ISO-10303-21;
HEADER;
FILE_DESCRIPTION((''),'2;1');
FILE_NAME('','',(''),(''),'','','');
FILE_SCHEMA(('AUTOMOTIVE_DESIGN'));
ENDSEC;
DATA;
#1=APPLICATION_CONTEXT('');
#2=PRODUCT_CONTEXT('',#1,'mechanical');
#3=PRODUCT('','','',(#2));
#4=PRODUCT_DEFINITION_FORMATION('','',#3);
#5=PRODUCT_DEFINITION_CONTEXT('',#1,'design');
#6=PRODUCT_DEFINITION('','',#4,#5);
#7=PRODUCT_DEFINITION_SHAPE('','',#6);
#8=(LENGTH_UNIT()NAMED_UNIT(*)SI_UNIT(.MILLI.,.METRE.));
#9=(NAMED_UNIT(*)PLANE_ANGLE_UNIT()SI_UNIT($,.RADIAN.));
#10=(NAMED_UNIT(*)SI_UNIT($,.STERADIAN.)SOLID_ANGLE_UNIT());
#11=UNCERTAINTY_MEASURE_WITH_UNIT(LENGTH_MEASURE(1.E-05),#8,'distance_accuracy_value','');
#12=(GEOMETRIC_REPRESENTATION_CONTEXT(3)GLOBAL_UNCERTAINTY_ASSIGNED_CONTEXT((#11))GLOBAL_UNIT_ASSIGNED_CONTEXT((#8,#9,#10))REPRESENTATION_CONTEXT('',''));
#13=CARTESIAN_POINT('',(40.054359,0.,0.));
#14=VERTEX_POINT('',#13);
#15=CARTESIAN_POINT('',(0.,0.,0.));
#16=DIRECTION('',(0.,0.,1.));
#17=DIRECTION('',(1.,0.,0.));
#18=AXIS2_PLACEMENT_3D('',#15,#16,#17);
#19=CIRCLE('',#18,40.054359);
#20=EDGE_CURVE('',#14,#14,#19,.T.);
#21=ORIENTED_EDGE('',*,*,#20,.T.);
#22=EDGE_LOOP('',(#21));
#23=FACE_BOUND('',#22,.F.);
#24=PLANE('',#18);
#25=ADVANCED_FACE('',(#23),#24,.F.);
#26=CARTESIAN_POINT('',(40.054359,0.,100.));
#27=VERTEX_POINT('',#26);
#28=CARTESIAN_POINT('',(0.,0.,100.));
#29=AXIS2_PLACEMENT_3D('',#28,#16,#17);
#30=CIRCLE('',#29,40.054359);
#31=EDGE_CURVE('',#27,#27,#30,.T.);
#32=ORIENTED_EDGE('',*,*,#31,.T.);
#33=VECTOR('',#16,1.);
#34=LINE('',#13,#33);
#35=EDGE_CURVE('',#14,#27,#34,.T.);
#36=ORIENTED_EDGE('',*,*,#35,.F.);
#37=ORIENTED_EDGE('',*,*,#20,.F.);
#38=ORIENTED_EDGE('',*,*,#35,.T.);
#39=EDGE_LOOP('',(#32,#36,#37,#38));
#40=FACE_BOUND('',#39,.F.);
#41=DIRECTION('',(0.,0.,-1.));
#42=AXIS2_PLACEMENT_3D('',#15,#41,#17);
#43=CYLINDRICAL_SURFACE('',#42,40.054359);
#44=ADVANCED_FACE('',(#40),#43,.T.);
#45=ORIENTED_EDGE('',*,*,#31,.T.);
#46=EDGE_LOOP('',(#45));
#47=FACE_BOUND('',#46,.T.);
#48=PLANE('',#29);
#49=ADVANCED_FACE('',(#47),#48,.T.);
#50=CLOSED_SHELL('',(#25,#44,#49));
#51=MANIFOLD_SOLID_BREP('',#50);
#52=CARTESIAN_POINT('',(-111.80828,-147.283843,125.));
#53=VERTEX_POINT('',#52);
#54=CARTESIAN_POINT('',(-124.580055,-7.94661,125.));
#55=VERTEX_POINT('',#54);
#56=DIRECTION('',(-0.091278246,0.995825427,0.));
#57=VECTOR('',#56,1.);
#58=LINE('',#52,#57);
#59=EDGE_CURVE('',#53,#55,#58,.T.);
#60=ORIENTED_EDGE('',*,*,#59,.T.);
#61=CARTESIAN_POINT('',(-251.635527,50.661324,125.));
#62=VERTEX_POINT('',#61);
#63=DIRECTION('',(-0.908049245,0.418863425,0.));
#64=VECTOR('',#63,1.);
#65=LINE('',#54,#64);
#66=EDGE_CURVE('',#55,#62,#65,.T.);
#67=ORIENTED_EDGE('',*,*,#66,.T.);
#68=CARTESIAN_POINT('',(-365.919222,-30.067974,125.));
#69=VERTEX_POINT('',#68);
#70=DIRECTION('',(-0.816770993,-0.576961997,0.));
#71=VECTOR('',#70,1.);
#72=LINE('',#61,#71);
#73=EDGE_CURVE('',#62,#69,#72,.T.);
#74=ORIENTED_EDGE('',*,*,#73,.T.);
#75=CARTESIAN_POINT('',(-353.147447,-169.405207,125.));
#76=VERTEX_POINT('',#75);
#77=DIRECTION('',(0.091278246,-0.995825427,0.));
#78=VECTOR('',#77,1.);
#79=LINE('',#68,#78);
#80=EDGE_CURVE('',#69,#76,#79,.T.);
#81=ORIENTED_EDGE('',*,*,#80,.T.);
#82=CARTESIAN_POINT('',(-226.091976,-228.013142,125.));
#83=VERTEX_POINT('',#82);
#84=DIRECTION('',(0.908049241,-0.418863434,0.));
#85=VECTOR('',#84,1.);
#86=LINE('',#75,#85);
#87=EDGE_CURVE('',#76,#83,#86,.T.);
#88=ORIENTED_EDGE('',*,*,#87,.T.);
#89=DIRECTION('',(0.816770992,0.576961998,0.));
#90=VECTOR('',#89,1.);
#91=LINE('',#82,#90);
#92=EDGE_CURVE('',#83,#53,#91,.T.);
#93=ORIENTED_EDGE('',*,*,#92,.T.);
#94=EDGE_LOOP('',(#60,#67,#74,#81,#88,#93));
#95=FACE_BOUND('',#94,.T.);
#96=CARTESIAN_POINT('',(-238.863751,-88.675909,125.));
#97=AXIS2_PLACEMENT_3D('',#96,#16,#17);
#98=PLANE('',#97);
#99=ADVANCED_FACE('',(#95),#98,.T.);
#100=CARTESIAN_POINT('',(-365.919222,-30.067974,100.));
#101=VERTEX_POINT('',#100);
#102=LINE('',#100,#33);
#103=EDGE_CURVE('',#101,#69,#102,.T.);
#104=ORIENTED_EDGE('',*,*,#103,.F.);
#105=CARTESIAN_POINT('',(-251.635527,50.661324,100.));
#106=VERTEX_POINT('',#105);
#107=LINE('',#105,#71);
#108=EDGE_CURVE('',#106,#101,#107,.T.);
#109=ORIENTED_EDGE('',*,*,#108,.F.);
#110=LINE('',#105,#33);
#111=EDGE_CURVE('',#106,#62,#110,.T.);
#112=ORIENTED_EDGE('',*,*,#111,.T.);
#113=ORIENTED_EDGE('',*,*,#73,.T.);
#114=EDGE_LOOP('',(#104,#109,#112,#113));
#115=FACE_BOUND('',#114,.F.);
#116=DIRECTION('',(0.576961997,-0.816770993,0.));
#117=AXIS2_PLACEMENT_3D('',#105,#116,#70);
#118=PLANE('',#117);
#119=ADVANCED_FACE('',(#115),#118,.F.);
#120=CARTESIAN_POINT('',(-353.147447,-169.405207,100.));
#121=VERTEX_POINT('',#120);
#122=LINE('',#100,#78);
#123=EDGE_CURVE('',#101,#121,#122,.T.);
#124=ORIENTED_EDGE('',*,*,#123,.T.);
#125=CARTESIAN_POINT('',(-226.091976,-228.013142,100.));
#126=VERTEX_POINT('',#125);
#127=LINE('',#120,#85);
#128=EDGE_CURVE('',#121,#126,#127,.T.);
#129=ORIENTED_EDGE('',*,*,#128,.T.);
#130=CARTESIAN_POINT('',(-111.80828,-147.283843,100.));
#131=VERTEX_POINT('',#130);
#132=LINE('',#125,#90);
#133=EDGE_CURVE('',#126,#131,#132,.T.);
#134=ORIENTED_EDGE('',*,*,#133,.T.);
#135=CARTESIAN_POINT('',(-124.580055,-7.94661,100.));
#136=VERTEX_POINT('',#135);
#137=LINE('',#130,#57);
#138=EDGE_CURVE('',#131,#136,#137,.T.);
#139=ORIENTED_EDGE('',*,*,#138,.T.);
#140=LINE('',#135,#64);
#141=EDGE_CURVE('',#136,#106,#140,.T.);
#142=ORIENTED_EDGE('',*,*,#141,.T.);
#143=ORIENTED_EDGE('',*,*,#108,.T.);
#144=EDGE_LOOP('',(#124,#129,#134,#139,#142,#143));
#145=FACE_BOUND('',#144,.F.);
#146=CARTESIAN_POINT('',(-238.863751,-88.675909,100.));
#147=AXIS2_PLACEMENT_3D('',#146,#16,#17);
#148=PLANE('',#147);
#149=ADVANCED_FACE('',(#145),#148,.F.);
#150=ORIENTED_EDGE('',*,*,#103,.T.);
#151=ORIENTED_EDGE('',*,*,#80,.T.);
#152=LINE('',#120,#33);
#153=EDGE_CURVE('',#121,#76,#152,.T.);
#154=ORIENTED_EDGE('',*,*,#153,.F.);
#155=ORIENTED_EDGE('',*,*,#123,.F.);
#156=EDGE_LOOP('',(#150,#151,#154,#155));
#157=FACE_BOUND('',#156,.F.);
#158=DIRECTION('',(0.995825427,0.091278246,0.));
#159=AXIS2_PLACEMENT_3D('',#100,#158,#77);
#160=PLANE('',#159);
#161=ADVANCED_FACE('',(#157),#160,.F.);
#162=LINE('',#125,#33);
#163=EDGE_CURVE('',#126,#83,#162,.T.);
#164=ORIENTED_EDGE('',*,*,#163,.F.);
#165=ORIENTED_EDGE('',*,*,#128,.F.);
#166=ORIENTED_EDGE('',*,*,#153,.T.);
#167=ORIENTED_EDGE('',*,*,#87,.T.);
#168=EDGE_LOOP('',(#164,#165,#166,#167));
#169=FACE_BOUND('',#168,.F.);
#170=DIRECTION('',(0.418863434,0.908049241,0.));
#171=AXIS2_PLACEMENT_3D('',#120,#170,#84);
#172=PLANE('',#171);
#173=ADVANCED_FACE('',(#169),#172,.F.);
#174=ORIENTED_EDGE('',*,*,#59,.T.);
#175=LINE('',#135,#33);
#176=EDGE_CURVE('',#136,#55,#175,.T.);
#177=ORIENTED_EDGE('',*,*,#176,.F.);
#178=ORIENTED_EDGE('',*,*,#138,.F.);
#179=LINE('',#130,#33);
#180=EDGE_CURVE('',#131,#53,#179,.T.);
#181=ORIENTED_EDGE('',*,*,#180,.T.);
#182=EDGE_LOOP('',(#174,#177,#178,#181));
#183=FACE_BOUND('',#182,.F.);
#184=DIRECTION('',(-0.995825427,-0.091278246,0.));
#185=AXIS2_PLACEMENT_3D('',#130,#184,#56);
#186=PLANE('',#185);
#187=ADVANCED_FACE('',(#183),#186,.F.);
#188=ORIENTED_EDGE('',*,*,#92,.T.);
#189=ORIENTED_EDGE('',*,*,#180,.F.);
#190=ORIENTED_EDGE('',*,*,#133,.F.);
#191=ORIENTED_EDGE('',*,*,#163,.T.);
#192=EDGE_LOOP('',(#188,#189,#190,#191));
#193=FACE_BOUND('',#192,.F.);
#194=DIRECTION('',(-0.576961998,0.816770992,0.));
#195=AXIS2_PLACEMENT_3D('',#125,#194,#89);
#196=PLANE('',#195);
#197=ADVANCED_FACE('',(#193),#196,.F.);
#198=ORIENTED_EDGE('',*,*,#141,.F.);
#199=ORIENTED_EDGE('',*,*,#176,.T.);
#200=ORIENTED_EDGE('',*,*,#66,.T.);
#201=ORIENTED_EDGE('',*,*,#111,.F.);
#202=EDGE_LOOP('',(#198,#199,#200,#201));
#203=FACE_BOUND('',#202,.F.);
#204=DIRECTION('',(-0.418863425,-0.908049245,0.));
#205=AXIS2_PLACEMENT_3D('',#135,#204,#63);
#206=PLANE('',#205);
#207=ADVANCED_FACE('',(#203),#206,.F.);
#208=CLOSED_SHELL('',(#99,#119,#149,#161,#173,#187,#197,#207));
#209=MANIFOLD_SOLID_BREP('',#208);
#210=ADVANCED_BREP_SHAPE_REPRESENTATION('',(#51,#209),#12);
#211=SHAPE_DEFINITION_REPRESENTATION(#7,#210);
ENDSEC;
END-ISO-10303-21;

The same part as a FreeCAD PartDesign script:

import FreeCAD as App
import Part
import Sketcher

V = App.Vector
Q = App.Units.Quantity


def add_polygon(sketch, points):
    """Adds a closed chain of lines whose ends are joined by coincident constraints."""
    first, n = sketch.GeometryCount, len(points)
    for a, b in zip(points, points[1:] + points[:1]):
        sketch.addGeometry(Part.LineSegment(App.Vector(*a, 0), App.Vector(*b, 0)), False)
    for i in range(n):
        sketch.addConstraint(Sketcher.Constraint("Coincident", first + i, 2, first + (i + 1) % n, 1))

doc = App.newDocument("Part")
body = doc.addObject("PartDesign::Body", "Body")

sketch1 = body.newObject("Sketcher::SketchObject", "Sketch")
sketch1.AttachmentSupport = (doc.getObject("XY_Plane"), [""])
sketch1.MapMode = "FlatFace"
sketch1.addGeometry(Part.Circle(V(0, 0, 0), V(0, 0, 1), 40), False)
sketch1.addConstraint(Sketcher.Constraint("Coincident", 0, 3, -1, 1))
sketch1.addConstraint(Sketcher.Constraint("Diameter", 0, Q("80.108718 mm")))
pad1 = body.newObject("PartDesign::Pad", "Pad")
pad1.Profile = sketch1
pad1.Length = 100
body2 = doc.addObject("PartDesign::Body", "Body001")

sketch2 = body2.newObject("Sketcher::SketchObject", "Sketch001")
sketch2.AttachmentSupport = (doc.getObject("XY_Plane001"), [""])
sketch2.MapMode = "FlatFace"
sketch2.AttachmentOffset = App.Placement(V(0, 0, 100), App.Rotation())
add_polygon(sketch2, [(-366, -30), (-353, -169), (-226, -228), (-112, -147), (-125, -8), (-252, 51)])
sketch2.addConstraint(Sketcher.Constraint("Parallel", 0, 3))
sketch2.addConstraint(Sketcher.Constraint("Parallel", 1, 4))
sketch2.addConstraint(Sketcher.Constraint("Parallel", 2, 5))
sketch2.addConstraint(Sketcher.Constraint("Equal", 0, 1))
sketch2.addConstraint(Sketcher.Constraint("Equal", 1, 2))
sketch2.addConstraint(Sketcher.Constraint("Equal", 2, 3))
sketch2.addConstraint(Sketcher.Constraint("DistanceY", 1, 2, 2, 2, Q("80.729299 mm")))
sketch2.addConstraint(Sketcher.Constraint("DistanceY", 1, 2, -1, 1, Q("228.013142 mm")))
sketch2.addConstraint(Sketcher.Constraint("DistanceX", 2, 2, -1, 1, Q("111.80828 mm")))
sketch2.addConstraint(Sketcher.Constraint("DistanceY", 3, 2, -1, 1, Q("7.94661 mm")))
sketch2.addConstraint(Sketcher.Constraint("DistanceX", 5, 2, -1, 1, Q("365.919222 mm")))
sketch2.addConstraint(Sketcher.Constraint("DistanceX", 0, 2, 1, 2, Q("127.055471 mm")))
pad2 = body2.newObject("PartDesign::Pad", "Pad001")
pad2.Profile = sketch2
pad2.Length = 25

doc.recompute()
